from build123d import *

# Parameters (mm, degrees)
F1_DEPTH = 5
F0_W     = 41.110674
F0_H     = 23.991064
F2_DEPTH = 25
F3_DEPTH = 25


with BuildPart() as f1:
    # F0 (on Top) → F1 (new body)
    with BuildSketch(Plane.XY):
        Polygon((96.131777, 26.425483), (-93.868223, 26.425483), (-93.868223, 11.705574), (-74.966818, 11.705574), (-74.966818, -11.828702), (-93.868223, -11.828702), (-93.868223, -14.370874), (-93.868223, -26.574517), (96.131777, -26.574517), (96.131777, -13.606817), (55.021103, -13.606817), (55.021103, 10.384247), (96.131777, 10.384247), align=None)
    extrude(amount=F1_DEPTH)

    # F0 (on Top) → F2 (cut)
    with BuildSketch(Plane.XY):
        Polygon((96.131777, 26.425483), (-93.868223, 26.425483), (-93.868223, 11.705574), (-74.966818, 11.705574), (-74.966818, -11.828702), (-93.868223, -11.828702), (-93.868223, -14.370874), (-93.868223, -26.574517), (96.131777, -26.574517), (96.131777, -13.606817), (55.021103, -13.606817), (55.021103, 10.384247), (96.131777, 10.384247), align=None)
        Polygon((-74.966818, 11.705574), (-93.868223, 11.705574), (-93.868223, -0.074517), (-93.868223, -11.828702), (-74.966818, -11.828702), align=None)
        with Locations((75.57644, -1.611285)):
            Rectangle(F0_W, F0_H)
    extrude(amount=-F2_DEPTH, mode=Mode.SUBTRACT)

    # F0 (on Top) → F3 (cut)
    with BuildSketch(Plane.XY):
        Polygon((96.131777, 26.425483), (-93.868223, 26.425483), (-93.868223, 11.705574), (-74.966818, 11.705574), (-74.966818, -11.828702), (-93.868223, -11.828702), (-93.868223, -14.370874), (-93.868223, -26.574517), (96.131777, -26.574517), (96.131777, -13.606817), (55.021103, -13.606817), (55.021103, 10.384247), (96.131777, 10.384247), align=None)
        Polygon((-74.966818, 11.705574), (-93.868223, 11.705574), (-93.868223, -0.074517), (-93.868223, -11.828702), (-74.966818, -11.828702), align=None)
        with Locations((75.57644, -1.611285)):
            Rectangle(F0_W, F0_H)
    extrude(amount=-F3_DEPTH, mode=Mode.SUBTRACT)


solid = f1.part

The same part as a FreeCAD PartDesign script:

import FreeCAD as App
import Part
import Sketcher

doc = App.newDocument("Part")
body = doc.addObject("PartDesign::Body", "Body")

sketch1 = body.newObject("Sketcher::SketchObject", "Sketch")
sketch1.AttachmentSupport = (doc.getObject("XY_Plane"), [""])
sketch1.MapMode = "FlatFace"
sketch1.addGeometry([
    Part.LineSegment(App.Vector(96, 26, 0), App.Vector(-94, 26, 0)),
    Part.LineSegment(App.Vector(-94, 26, 0), App.Vector(-94, 12, 0)),
    Part.LineSegment(App.Vector(-94, 12, 0), App.Vector(-75, 12, 0)),
    Part.LineSegment(App.Vector(-75, 12, 0), App.Vector(-75, -12, 0)),
    Part.LineSegment(App.Vector(-75, -12, 0), App.Vector(-94, -12, 0)),
    Part.LineSegment(App.Vector(-94, -12, 0), App.Vector(-94, -27, 0)),
    Part.LineSegment(App.Vector(-94, -27, 0), App.Vector(96, -27, 0)),
    Part.LineSegment(App.Vector(96, -27, 0), App.Vector(96, -14, 0)),
    Part.LineSegment(App.Vector(96, -14, 0), App.Vector(55, -14, 0)),
    Part.LineSegment(App.Vector(55, -14, 0), App.Vector(55, 10, 0)),
    Part.LineSegment(App.Vector(55, 10, 0), App.Vector(96, 10, 0)),
    Part.LineSegment(App.Vector(96, 10, 0), App.Vector(96, 26, 0)),
], False)
sketch1.addConstraint([
    Sketcher.Constraint("Coincident", 0, 2, 1, 1),
    Sketcher.Constraint("Coincident", 1, 2, 2, 1),
    Sketcher.Constraint("Coincident", 2, 2, 3, 1),
    Sketcher.Constraint("Coincident", 3, 2, 4, 1),
    Sketcher.Constraint("Coincident", 4, 2, 5, 1),
    Sketcher.Constraint("Coincident", 5, 2, 6, 1),
    Sketcher.Constraint("Coincident", 6, 2, 7, 1),
    Sketcher.Constraint("Coincident", 7, 2, 8, 1),
    Sketcher.Constraint("Coincident", 8, 2, 9, 1),
    Sketcher.Constraint("Coincident", 9, 2, 10, 1),
    Sketcher.Constraint("Coincident", 10, 2, 11, 1),
    Sketcher.Constraint("Coincident", 11, 2, 0, 1),
    Sketcher.Constraint("Horizontal", 0),
    Sketcher.Constraint("Vertical", 1),
    Sketcher.Constraint("Horizontal", 2),
    Sketcher.Constraint("Vertical", 3),
    Sketcher.Constraint("Horizontal", 4),
    Sketcher.Constraint("Vertical", 5),
    Sketcher.Constraint("Horizontal", 6),
    Sketcher.Constraint("Vertical", 7),
    Sketcher.Constraint("Horizontal", 8),
    Sketcher.Constraint("Vertical", 9),
    Sketcher.Constraint("Horizontal", 10),
    Sketcher.Constraint("Vertical", 11),
    Sketcher.Constraint("Vertical", 1, 2, 4, 2),
    Sketcher.Constraint("Vertical", 7, 2, 10, 2),
    Sketcher.Constraint("DistanceX", 0, 2, 0, 1, 190.0),
    Sketcher.Constraint("DistanceY", 5, 2, 0, 2, 53.0),
    Sketcher.Constraint("DistanceY", 7, 1, 7, 2, 12.9677),
    Sketcher.Constraint("DistanceY", 1, 2, 1, 1, 14.719909),
    Sketcher.Constraint("DistanceX", 2, 1, 2, 2, 18.901405),
    Sketcher.Constraint("DistanceX", 8, 2, 8, 1, 41.110674),
    Sketcher.Constraint("DistanceY", 3, 2, 3, 1, 23.534276),
    Sketcher.Constraint("DistanceY", 9, 1, 9, 2, 23.991064),
    Sketcher.Constraint("DistanceX", 2, 2, -1, 1, 74.966818),
    Sketcher.Constraint("DistanceY", -1, 1, 0, 2, 26.425483),
])
pad1 = body.newObject("PartDesign::Pad", "Pad")
pad1.Profile = sketch1
pad1.Length = 5

sketch2 = body.newObject("Sketcher::SketchObject", "Sketch001")
sketch2.AttachmentSupport = (doc.getObject("XY_Plane"), [""])
sketch2.MapMode = "FlatFace"
sketch2.addGeometry([
    Part.LineSegment(App.Vector(96, 26, 0), App.Vector(-94, 26, 0)),
    Part.LineSegment(App.Vector(-94, 26, 0), App.Vector(-94, -27, 0)),
    Part.LineSegment(App.Vector(-94, -27, 0), App.Vector(96, -27, 0)),
    Part.LineSegment(App.Vector(96, -27, 0), App.Vector(96, 26, 0)),
], False)
sketch2.addConstraint([
    Sketcher.Constraint("Coincident", 0, 2, 1, 1),
    Sketcher.Constraint("Coincident", 1, 2, 2, 1),
    Sketcher.Constraint("Coincident", 2, 2, 3, 1),
    Sketcher.Constraint("Coincident", 3, 2, 0, 1),
    Sketcher.Constraint("Horizontal", 0),
    Sketcher.Constraint("Vertical", 1),
    Sketcher.Constraint("Horizontal", 2),
    Sketcher.Constraint("Vertical", 3),
    Sketcher.Constraint("DistanceX", 0, 2, 0, 1, 190.0),
    Sketcher.Constraint("DistanceY", 1, 2, 1, 1, 53.0),
    Sketcher.Constraint("DistanceX", 0, 2, -1, 1, 93.868223),
    Sketcher.Constraint("DistanceY", -1, 1, 0, 2, 26.425483),
])
pocket1 = body.newObject("PartDesign::Pocket", "Pocket")
pocket1.Profile = sketch2
pocket1.Length = 25

sketch3 = body.newObject("Sketcher::SketchObject", "Sketch002")
sketch3.AttachmentSupport = (doc.getObject("XY_Plane"), [""])
sketch3.MapMode = "FlatFace"
sketch3.addGeometry([
    Part.LineSegment(App.Vector(96, 26, 0), App.Vector(-94, 26, 0)),
    Part.LineSegment(App.Vector(-94, 26, 0), App.Vector(-94, -27, 0)),
    Part.LineSegment(App.Vector(-94, -27, 0), App.Vector(96, -27, 0)),
    Part.LineSegment(App.Vector(96, -27, 0), App.Vector(96, 26, 0)),
], False)
sketch3.addConstraint([
    Sketcher.Constraint("Coincident", 0, 2, 1, 1),
    Sketcher.Constraint("Coincident", 1, 2, 2, 1),
    Sketcher.Constraint("Coincident", 2, 2, 3, 1),
    Sketcher.Constraint("Coincident", 3, 2, 0, 1),
    Sketcher.Constraint("Horizontal", 0),
    Sketcher.Constraint("Vertical", 1),
    Sketcher.Constraint("Horizontal", 2),
    Sketcher.Constraint("Vertical", 3),
    Sketcher.Constraint("DistanceX", 0, 2, 0, 1, 190.0),
    Sketcher.Constraint("DistanceY", 1, 2, 1, 1, 53.0),
    Sketcher.Constraint("DistanceX", 0, 2, -1, 1, 93.868223),
    Sketcher.Constraint("DistanceY", -1, 1, 0, 2, 26.425483),
])
pocket2 = body.newObject("PartDesign::Pocket", "Pocket001")
pocket2.Profile = sketch3
pocket2.Length = 25

doc.recompute()
